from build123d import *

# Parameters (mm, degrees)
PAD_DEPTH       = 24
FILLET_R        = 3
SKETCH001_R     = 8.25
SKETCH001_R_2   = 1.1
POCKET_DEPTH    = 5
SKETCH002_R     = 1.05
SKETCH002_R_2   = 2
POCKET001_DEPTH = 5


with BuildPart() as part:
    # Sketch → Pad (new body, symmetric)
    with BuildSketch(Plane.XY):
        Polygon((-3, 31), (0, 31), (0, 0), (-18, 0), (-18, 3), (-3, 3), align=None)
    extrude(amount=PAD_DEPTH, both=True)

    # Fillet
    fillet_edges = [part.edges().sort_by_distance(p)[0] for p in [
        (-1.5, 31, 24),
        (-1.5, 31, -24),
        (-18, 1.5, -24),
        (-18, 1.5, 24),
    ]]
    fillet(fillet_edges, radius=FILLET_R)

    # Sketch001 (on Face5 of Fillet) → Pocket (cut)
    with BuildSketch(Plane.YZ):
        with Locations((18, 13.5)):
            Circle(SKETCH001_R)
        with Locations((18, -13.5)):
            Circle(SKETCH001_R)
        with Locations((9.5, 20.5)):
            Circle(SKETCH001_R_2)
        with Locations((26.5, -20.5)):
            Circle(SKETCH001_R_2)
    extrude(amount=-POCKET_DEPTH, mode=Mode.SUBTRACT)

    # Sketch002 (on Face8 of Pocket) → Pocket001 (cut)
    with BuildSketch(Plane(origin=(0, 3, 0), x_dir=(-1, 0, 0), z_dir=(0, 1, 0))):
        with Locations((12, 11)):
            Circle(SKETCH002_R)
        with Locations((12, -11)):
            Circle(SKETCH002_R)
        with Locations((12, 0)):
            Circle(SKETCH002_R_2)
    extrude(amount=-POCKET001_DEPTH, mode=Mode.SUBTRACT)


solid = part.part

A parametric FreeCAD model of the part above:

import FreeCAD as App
import Part
import Sketcher

V = App.Vector


def edges_at(feature, points):
    """Names of the edges that pass closest to the given points."""
    edges = feature.Shape.Edges
    near = lambda p: min(range(len(edges)), key=lambda i: edges[i].distToShape(Part.Vertex(*p))[0])
    return sorted({f"Edge{near(p) + 1}" for p in points})

doc = App.newDocument("Part")
body = doc.addObject("PartDesign::Body", "Body")

# Sketch on XY plane
sketch1 = doc.addObject("Sketcher::SketchObject", "Sketch")
body.addObject(sketch1)
sketch1.AttachmentSupport = (doc.XY_Plane, [""])
sketch1.MapMode = "FlatFace"
sketch1.addGeometry([
    Part.LineSegment(V(0, 31, 0), V(-3, 31, 0)),  # 0
    Part.LineSegment(V(-3, 31, 0), V(-3, 3, 0)),  # 1
    Part.LineSegment(V(-3, 3, 0), V(-18, 3, 0)),  # 2
    Part.LineSegment(V(-18, 3, 0), V(-18, 0, 0)),  # 3
    Part.LineSegment(V(-18, 0, 0), V(0, 0, 0)),  # 4
    Part.LineSegment(V(0, 0, 0), V(0, 31, 0)),  # 5
], False)
sketch1.addConstraint([
    Sketcher.Constraint("Coincident", 0, 2, 1, 1),
    Sketcher.Constraint("Coincident", 1, 2, 2, 1),
    Sketcher.Constraint("Coincident", 2, 2, 3, 1),
    Sketcher.Constraint("Coincident", 3, 2, 4, 1),
    Sketcher.Constraint("Coincident", 4, 2, 5, 1),
    Sketcher.Constraint("Coincident", 5, 2, 0, 1),
    Sketcher.Constraint("Horizontal", 0),
    Sketcher.Constraint("Vertical", 1),
    Sketcher.Constraint("Horizontal", 2),
    Sketcher.Constraint("Vertical", 3),
    Sketcher.Constraint("Horizontal", 4),
    Sketcher.Constraint("Vertical", 5),
    Sketcher.Constraint("Coincident", 4, 2, -1, 1),
    Sketcher.Constraint("Equal", 0, 3),
    Sketcher.Constraint("DistanceX", 0, 2, 0, 1, 3.0),
    Sketcher.Constraint("DistanceX", 2, 2, 2, 1, 15.0),
    Sketcher.Constraint("DistanceY", 1, 2, 1, 1, 28.0),
])
pad1 = doc.addObject("PartDesign::Pad", "Pad")
body.addObject(pad1)
pad1.Profile = sketch1
pad1.Length = 48
pad1.Midplane = True
doc.recompute()

fillet = doc.addObject("PartDesign::Fillet", "Fillet")
body.addObject(fillet)
fillet.Base = (pad1, edges_at(pad1, [
    (-1.5, 31, 24),
    (-1.5, 31, -24),
    (-18, 1.5, -24),
    (-18, 1.5, 24),
]))
fillet.Radius = 3

# Sketch on YZ plane
sketch2 = doc.addObject("Sketcher::SketchObject", "Sketch001")
body.addObject(sketch2)
sketch2.AttachmentSupport = (doc.YZ_Plane, [""])
sketch2.MapMode = "FlatFace"
sketch2.addGeometry([
    Part.Circle(V(18, 13.5, 0), V(0, 0, 1), 8.25),
    Part.Circle(V(18, -13.5, 0), V(0, 0, 1), 8.25),
    Part.Circle(V(9.5, 20.5, 0), V(0, 0, 1), 1.1),
    Part.Circle(V(26.5, -20.5, 0), V(0, 0, 1), 1.1),
], False)
sketch2.addConstraint([
    Sketcher.Constraint("Equal", 0, 1),
    Sketcher.Constraint("Equal", 2, 3),
    Sketcher.Constraint("Symmetric", 0, 3, 1, 3, -1),
    Sketcher.Constraint("Diameter", 0, 16.5),
    Sketcher.Constraint("Diameter", 2, 2.2),
    Sketcher.Constraint("DistanceX", -1, 1, 0, 3, 18.0),
    Sketcher.Constraint("DistanceY", 1, 3, 0, 3, 27.0),
    Sketcher.Constraint("DistanceY", 0, 3, 2, 3, 7.0),
    Sketcher.Constraint("DistanceY", 3, 3, 1, 3, 7.0),
    Sketcher.Constraint("DistanceX", 2, 3, 3, 3, 17.0),
    Sketcher.Constraint("DistanceX", -1, 1, 2, 3, 9.5),
])
pocket1 = doc.addObject("PartDesign::Pocket", "Pocket")
body.addObject(pocket1)
pocket1.Profile = sketch2
pocket1.Length = 5

# Sketch on XZ plane
sketch3 = doc.addObject("Sketcher::SketchObject", "Sketch002")
body.addObject(sketch3)
sketch3.AttachmentSupport = (doc.XZ_Plane, [""])
sketch3.MapMode = "FlatFace"
sketch3.AttachmentOffset = App.Placement(V(0, 0, -3), App.Rotation())
sketch3.addGeometry([
    Part.Circle(V(-12, 11, 0), V(0, 0, 1), 1.05),
    Part.Circle(V(-12, -11, 0), V(0, 0, 1), 1.05),
    Part.Circle(V(-12, 0, 0), V(0, 0, 1), 2),
], False)
sketch3.addConstraint([
    Sketcher.Constraint("Equal", 0, 1),
    Sketcher.Constraint("Symmetric", 0, 3, 1, 3, -1),
    Sketcher.Constraint("PointOnObject", 2, 3, -1),
    Sketcher.Constraint("Vertical", 1, 3, 2, 3),
    Sketcher.Constraint("Diameter", 2, 4.0),
    Sketcher.Constraint("Diameter", 0, 2.1),
    Sketcher.Constraint("DistanceX", 0, 3, -1, 1, 12.0),
    Sketcher.Constraint("DistanceY", -1, 1, 0, 3, 11.0),
])
pocket2 = doc.addObject("PartDesign::Pocket", "Pocket001")
body.addObject(pocket2)
pocket2.Profile = sketch3
pocket2.Length = 5
pocket2.Reversed = True

doc.recompute()
